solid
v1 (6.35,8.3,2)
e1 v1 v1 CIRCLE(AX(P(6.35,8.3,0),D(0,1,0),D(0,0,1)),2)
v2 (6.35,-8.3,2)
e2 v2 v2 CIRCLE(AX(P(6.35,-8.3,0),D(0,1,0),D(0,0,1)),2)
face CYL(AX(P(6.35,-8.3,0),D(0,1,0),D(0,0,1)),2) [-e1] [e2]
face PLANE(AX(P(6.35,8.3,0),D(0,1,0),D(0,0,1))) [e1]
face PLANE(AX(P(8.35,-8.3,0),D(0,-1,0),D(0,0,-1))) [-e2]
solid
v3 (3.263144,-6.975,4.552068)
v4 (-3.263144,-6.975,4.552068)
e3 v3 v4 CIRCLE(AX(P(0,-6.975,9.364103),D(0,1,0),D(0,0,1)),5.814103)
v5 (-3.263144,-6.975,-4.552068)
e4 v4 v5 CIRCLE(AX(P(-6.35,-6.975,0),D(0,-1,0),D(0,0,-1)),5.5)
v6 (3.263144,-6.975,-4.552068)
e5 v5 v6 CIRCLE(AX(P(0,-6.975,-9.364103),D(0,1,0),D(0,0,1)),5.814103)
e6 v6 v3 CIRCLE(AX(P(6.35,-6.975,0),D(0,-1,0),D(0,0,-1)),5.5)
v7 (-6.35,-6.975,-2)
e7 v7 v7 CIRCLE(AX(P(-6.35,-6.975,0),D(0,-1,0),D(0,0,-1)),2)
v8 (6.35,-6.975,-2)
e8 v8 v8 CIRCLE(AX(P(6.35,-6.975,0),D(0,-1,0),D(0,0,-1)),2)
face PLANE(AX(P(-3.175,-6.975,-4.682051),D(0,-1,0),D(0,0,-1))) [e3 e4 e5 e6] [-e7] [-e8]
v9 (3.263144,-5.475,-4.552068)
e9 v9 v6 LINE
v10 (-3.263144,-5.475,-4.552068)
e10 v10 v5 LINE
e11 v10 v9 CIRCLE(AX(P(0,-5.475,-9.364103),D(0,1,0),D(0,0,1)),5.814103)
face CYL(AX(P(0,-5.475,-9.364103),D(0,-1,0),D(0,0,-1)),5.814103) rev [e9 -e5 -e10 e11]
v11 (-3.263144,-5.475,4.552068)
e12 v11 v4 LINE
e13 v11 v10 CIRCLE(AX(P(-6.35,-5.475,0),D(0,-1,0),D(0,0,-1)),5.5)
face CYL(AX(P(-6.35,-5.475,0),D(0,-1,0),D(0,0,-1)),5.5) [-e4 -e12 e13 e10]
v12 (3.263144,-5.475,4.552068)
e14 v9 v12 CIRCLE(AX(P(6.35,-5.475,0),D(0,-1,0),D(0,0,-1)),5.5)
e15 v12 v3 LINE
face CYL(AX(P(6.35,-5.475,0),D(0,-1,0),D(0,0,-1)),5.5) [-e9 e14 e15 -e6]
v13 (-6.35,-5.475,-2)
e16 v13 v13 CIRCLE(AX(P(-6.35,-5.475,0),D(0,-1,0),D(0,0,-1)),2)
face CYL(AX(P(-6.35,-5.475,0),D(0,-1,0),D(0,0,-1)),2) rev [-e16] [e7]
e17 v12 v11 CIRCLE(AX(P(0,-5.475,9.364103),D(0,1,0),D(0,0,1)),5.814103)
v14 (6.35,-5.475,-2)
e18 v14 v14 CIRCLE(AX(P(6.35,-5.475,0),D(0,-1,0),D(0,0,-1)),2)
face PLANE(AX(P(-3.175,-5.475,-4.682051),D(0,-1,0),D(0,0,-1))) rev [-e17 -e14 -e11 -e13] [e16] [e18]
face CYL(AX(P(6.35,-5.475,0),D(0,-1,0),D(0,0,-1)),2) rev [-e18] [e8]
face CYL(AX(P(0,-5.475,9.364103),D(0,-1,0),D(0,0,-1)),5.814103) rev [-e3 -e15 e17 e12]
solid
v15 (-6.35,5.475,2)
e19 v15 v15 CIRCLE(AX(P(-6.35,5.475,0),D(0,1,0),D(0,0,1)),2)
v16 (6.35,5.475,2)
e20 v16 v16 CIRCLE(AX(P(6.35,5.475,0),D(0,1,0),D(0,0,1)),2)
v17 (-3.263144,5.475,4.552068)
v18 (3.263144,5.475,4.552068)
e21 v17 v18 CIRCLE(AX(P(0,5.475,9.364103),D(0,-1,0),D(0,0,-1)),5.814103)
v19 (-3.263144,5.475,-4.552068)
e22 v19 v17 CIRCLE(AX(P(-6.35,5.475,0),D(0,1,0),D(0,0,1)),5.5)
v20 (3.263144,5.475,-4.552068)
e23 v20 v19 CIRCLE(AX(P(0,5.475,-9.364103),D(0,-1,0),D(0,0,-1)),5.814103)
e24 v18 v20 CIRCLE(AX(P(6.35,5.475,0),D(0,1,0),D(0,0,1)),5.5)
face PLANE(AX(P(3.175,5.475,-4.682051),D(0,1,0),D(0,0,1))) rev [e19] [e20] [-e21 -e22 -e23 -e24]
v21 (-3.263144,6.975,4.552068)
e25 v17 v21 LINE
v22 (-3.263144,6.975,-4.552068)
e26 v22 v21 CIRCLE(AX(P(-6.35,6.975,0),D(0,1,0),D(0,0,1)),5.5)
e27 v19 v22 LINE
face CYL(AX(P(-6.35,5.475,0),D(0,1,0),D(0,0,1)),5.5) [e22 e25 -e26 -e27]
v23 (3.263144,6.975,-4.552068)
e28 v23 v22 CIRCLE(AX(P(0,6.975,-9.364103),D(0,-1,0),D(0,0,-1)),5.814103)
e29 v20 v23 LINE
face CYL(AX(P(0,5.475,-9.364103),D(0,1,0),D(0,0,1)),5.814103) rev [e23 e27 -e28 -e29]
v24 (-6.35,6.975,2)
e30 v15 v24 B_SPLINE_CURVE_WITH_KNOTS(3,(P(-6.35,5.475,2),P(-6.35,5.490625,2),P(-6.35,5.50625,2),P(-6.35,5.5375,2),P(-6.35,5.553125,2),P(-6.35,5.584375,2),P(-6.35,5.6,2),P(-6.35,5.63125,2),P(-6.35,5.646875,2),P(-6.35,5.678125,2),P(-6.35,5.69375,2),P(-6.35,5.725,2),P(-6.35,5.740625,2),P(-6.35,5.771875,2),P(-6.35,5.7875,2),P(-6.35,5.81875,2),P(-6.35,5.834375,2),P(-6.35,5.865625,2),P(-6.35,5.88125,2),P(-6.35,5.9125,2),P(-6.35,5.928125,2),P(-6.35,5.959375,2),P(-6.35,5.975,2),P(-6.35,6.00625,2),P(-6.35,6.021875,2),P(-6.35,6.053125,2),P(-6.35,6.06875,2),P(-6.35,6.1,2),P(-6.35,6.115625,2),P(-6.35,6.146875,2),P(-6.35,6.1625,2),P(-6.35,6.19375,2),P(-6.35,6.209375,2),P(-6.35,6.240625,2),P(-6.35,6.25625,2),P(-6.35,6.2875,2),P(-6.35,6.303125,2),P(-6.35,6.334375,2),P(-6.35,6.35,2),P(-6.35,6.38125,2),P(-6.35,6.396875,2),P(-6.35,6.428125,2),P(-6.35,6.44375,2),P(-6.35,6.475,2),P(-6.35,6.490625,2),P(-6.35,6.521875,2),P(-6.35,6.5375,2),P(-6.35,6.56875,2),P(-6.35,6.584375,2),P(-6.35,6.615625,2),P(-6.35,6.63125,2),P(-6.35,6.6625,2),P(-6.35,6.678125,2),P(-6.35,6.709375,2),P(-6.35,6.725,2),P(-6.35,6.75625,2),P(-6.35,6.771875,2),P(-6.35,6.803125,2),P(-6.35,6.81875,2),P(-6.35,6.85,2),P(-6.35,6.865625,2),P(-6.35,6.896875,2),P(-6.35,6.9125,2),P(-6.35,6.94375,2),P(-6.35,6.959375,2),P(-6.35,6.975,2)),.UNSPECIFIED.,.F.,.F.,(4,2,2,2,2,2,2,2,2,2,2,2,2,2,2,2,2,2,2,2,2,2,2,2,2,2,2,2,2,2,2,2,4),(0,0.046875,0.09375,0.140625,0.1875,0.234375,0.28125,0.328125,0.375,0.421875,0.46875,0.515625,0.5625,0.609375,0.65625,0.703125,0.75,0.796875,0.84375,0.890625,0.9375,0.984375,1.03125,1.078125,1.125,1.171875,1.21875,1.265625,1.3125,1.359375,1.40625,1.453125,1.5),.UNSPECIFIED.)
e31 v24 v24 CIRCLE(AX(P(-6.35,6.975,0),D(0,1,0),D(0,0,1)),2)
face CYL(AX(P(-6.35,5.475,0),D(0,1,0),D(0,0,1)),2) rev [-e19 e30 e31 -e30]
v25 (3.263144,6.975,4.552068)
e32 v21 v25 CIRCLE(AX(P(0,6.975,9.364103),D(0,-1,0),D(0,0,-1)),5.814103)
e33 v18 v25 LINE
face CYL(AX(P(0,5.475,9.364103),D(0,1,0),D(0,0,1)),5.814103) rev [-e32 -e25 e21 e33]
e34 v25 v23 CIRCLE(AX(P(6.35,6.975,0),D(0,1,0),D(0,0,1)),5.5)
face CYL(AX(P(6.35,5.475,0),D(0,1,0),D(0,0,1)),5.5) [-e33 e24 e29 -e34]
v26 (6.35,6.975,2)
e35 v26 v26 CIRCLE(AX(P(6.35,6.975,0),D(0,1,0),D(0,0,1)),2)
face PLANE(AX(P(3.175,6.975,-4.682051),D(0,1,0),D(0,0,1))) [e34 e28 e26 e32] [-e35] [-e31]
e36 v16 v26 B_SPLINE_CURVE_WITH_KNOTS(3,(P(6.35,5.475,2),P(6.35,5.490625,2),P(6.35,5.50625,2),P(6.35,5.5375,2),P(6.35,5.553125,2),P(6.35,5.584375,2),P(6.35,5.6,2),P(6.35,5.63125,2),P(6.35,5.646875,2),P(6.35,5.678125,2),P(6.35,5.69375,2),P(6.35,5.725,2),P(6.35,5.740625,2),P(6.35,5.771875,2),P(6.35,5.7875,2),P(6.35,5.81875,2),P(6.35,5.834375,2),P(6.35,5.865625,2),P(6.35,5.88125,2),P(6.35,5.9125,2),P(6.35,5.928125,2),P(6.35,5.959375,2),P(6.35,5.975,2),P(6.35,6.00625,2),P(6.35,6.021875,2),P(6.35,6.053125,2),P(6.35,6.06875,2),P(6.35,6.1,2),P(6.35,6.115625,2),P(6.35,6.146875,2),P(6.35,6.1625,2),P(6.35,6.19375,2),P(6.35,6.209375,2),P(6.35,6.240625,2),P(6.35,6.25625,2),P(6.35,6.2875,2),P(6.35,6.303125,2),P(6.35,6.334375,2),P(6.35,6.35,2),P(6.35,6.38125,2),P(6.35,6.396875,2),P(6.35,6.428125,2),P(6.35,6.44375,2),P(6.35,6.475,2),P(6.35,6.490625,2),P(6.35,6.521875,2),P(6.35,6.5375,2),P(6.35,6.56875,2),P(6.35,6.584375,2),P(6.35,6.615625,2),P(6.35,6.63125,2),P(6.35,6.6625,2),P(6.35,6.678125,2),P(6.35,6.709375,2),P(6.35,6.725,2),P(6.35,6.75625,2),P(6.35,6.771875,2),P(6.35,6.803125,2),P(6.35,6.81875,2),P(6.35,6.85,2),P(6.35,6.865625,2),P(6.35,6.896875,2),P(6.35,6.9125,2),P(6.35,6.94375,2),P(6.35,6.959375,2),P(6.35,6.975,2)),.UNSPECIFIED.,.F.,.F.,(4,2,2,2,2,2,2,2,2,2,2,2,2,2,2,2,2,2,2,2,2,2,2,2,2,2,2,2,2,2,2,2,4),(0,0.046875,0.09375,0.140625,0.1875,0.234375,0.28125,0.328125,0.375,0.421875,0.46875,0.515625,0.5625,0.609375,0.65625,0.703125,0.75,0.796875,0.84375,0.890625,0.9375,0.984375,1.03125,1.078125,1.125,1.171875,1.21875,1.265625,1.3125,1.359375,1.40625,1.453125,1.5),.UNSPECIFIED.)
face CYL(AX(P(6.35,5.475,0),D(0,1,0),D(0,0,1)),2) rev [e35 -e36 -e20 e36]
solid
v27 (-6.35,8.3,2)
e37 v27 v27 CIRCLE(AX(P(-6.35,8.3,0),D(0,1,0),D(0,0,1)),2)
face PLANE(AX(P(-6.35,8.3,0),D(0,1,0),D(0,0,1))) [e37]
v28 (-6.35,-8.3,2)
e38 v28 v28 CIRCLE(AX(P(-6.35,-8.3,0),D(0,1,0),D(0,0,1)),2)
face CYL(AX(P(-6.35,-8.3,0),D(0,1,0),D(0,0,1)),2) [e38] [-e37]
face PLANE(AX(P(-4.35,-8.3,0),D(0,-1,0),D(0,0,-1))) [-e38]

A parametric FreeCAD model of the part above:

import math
import FreeCAD as App
import Part
import Sketcher

V = App.Vector
Q = App.Units.Quantity

doc = App.newDocument("Part")
body = doc.addObject("PartDesign::Body", "Body")

# Sketch on XZ plane
sketch1 = doc.addObject("Sketcher::SketchObject", "Sketch")
body.addObject(sketch1)
sketch1.AttachmentSupport = (doc.XZ_Plane, [""])
sketch1.MapMode = "FlatFace"
sketch1.AttachmentOffset = App.Placement(V(0, 0, -6.975), App.Rotation())
sketch1.addGeometry([
    Part.ArcOfCircle(Part.Circle(V(0, -9.4, 0), V(0, 0, 1), 5.8), math.radians(56), math.radians(124)),  # 0
    Part.ArcOfCircle(Part.Circle(V(-6.3, 0, 0), V(0, 0, 1), 5.5), math.radians(56), math.radians(304)),  # 1
    Part.ArcOfCircle(Part.Circle(V(0, 9.4, 0), V(0, 0, 1), 5.8), math.radians(-124), math.radians(-56)),  # 2
    Part.ArcOfCircle(Part.Circle(V(6.3, 0, 0), V(0, 0, 1), 5.5), math.radians(-124), math.radians(124)),  # 3
    Part.Circle(V(-6.3, 0, 0), V(0, 0, 1), 2),  # 4
    Part.Circle(V(6.3, 0, 0), V(0, 0, 1), 2),  # 5
], False)
sketch1.addConstraint([
    Sketcher.Constraint("Tangent", 0, 2, 1, 2),
    Sketcher.Constraint("Tangent", 1, 1, 2, 1),
    Sketcher.Constraint("Tangent", 2, 2, 3, 2),
    Sketcher.Constraint("Tangent", 3, 1, 0, 1),
    Sketcher.Constraint("Coincident", 4, 3, 1, 3),
    Sketcher.Constraint("Coincident", 5, 3, 3, 3),
    Sketcher.Constraint("Equal", 0, 2),
    Sketcher.Constraint("Equal", 1, 3),
    Sketcher.Constraint("Equal", 4, 5),
    Sketcher.Constraint("Symmetric", 0, 3, 2, 3, -1, 1),
    Sketcher.Constraint("PointOnObject", 0, 3, -2),
    Sketcher.Constraint("Diameter", 4, Q("4 mm")),
    Sketcher.Constraint("Radius", 1, Q("5.5 mm")),
    Sketcher.Constraint("DistanceX", 1, 3, 3, 3, Q("12.7 mm")),
    Sketcher.Constraint("Radius", 0, Q("5.814103 mm")),
])
pad1 = doc.addObject("PartDesign::Pad", "Pad")
body.addObject(pad1)
pad1.Profile = sketch1
pad1.Length = 1.5
body2 = doc.addObject("PartDesign::Body", "Body001")

# Sketch on XZ plane
sketch2 = doc.addObject("Sketcher::SketchObject", "Sketch001")
body2.addObject(sketch2)
sketch2.AttachmentSupport = (doc.getObject("XZ_Plane001"), [""])
sketch2.MapMode = "FlatFace"
sketch2.AttachmentOffset = App.Placement(V(0, 0, 6.975), App.Rotation())
sketch2.addGeometry([
    Part.ArcOfCircle(Part.Circle(V(0, -9.4, 0), V(0, 0, 1), 5.8), math.radians(56), math.radians(124)),  # 0
    Part.ArcOfCircle(Part.Circle(V(6.3, 0, 0), V(0, 0, 1), 5.5), math.radians(-124), math.radians(124)),  # 1
    Part.ArcOfCircle(Part.Circle(V(0, 9.4, 0), V(0, 0, 1), 5.8), math.radians(-124), math.radians(-56)),  # 2
    Part.ArcOfCircle(Part.Circle(V(-6.3, 0, 0), V(0, 0, 1), 5.5), math.radians(56), math.radians(304)),  # 3
    Part.Circle(V(6.3, 0, 0), V(0, 0, 1), 2),  # 4
    Part.Circle(V(-6.3, 0, 0), V(0, 0, 1), 2),  # 5
], False)
sketch2.addConstraint([
    Sketcher.Constraint("Tangent", 0, 1, 1, 1),
    Sketcher.Constraint("Tangent", 1, 2, 2, 2),
    Sketcher.Constraint("Tangent", 2, 1, 3, 1),
    Sketcher.Constraint("Tangent", 3, 2, 0, 2),
    Sketcher.Constraint("Coincident", 4, 3, 1, 3),
    Sketcher.Constraint("Coincident", 5, 3, 3, 3),
    Sketcher.Constraint("Equal", 0, 2),
    Sketcher.Constraint("Equal", 1, 3),
    Sketcher.Constraint("Equal", 4, 5),
    Sketcher.Constraint("Symmetric", 0, 3, 2, 3, -1, 1),
    Sketcher.Constraint("PointOnObject", 0, 3, -2),
    Sketcher.Constraint("Diameter", 4, Q("4 mm")),
    Sketcher.Constraint("Radius", 1, Q("5.5 mm")),
    Sketcher.Constraint("DistanceX", 3, 3, 1, 3, Q("12.7 mm")),
    Sketcher.Constraint("Radius", 0, Q("5.814103 mm")),
])
pad2 = doc.addObject("PartDesign::Pad", "Pad001")
body2.addObject(pad2)
pad2.Profile = sketch2
pad2.Length = 1.5
pad2.Reversed = True
body3 = doc.addObject("PartDesign::Body", "Body002")

# Sketch on XY plane
sketch3 = doc.addObject("Sketcher::SketchObject", "Sketch002")
body3.addObject(sketch3)
sketch3.AttachmentSupport = (doc.getObject("XY_Plane002"), [""])
sketch3.MapMode = "FlatFace"
sketch3.addGeometry([
    Part.LineSegment(V(-4.3, 8.3, 0), V(-4.3, -8.3, 0)),
    Part.LineSegment(V(-4.3, -8.3, 0), V(-6.3, -8.3, 0)),
    Part.LineSegment(V(-6.3, -8.3, 0), V(-6.3, 8.3, 0)),
    Part.LineSegment(V(-6.3, 8.3, 0), V(-4.3, 8.3, 0)),
], False)
sketch3.addGeometry(Part.LineSegment(V(-6.3, -8.3, 0), V(-6.3, 8.3, 0)), True)  # axis
sketch3.addConstraint([
    Sketcher.Constraint("Coincident", 0, 2, 1, 1),
    Sketcher.Constraint("Coincident", 1, 2, 2, 1),
    Sketcher.Constraint("Coincident", 2, 2, 3, 1),
    Sketcher.Constraint("Coincident", 3, 2, 0, 1),
    Sketcher.Constraint("Vertical", 0),
    Sketcher.Constraint("Horizontal", 1),
    Sketcher.Constraint("Vertical", 2),
    Sketcher.Constraint("Horizontal", 3),
    Sketcher.Constraint("Vertical", 4),
    Sketcher.Constraint("Coincident", 4, 1, 1, 2),
    Sketcher.Constraint("Horizontal", 3, 2, 4, 2),
    Sketcher.Constraint("DistanceX", 1, 2, 1, 1, Q("2 mm")),
    Sketcher.Constraint("DistanceY", 0, 2, 0, 1, Q("16.6 mm")),
    Sketcher.Constraint("DistanceY", 0, 2, -1, 1, Q("8.3 mm")),
    Sketcher.Constraint("DistanceX", 0, 2, -1, 1, Q("4.35 mm")),
])
revolution = doc.addObject("PartDesign::Revolution", "Revolution")
body3.addObject(revolution)
revolution.Profile = sketch3
revolution.ReferenceAxis = (sketch3, ["Axis0"])
revolution.Angle = 360
body4 = doc.addObject("PartDesign::Body", "Body003")

# Sketch on XY plane
sketch4 = doc.addObject("Sketcher::SketchObject", "Sketch003")
body4.addObject(sketch4)
sketch4.AttachmentSupport = (doc.getObject("XY_Plane003"), [""])
sketch4.MapMode = "FlatFace"
sketch4.addGeometry([
    Part.LineSegment(V(8.3, 8.3, 0), V(8.3, -8.3, 0)),
    Part.LineSegment(V(8.3, -8.3, 0), V(6.3, -8.3, 0)),
    Part.LineSegment(V(6.3, -8.3, 0), V(6.3, 8.3, 0)),
    Part.LineSegment(V(6.3, 8.3, 0), V(8.3, 8.3, 0)),
], False)
sketch4.addGeometry(Part.LineSegment(V(6.3, -8.3, 0), V(6.3, 8.3, 0)), True)  # axis
sketch4.addConstraint([
    Sketcher.Constraint("Coincident", 0, 2, 1, 1),
    Sketcher.Constraint("Coincident", 1, 2, 2, 1),
    Sketcher.Constraint("Coincident", 2, 2, 3, 1),
    Sketcher.Constraint("Coincident", 3, 2, 0, 1),
    Sketcher.Constraint("Vertical", 0),
    Sketcher.Constraint("Horizontal", 1),
    Sketcher.Constraint("Vertical", 2),
    Sketcher.Constraint("Horizontal", 3),
    Sketcher.Constraint("Vertical", 4),
    Sketcher.Constraint("Coincident", 4, 1, 1, 2),
    Sketcher.Constraint("Horizontal", 3, 2, 4, 2),
    Sketcher.Constraint("DistanceX", 1, 2, 1, 1, Q("2 mm")),
    Sketcher.Constraint("DistanceY", 0, 2, 0, 1, Q("16.6 mm")),
    Sketcher.Constraint("DistanceY", 0, 2, -1, 1, Q("8.3 mm")),
    Sketcher.Constraint("DistanceX", -1, 1, 0, 2, Q("8.35 mm")),
])
revolution2 = doc.addObject("PartDesign::Revolution", "Revolution001")
body4.addObject(revolution2)
revolution2.Profile = sketch4
revolution2.ReferenceAxis = (sketch4, ["Axis0"])
revolution2.Angle = 360

doc.recompute()
